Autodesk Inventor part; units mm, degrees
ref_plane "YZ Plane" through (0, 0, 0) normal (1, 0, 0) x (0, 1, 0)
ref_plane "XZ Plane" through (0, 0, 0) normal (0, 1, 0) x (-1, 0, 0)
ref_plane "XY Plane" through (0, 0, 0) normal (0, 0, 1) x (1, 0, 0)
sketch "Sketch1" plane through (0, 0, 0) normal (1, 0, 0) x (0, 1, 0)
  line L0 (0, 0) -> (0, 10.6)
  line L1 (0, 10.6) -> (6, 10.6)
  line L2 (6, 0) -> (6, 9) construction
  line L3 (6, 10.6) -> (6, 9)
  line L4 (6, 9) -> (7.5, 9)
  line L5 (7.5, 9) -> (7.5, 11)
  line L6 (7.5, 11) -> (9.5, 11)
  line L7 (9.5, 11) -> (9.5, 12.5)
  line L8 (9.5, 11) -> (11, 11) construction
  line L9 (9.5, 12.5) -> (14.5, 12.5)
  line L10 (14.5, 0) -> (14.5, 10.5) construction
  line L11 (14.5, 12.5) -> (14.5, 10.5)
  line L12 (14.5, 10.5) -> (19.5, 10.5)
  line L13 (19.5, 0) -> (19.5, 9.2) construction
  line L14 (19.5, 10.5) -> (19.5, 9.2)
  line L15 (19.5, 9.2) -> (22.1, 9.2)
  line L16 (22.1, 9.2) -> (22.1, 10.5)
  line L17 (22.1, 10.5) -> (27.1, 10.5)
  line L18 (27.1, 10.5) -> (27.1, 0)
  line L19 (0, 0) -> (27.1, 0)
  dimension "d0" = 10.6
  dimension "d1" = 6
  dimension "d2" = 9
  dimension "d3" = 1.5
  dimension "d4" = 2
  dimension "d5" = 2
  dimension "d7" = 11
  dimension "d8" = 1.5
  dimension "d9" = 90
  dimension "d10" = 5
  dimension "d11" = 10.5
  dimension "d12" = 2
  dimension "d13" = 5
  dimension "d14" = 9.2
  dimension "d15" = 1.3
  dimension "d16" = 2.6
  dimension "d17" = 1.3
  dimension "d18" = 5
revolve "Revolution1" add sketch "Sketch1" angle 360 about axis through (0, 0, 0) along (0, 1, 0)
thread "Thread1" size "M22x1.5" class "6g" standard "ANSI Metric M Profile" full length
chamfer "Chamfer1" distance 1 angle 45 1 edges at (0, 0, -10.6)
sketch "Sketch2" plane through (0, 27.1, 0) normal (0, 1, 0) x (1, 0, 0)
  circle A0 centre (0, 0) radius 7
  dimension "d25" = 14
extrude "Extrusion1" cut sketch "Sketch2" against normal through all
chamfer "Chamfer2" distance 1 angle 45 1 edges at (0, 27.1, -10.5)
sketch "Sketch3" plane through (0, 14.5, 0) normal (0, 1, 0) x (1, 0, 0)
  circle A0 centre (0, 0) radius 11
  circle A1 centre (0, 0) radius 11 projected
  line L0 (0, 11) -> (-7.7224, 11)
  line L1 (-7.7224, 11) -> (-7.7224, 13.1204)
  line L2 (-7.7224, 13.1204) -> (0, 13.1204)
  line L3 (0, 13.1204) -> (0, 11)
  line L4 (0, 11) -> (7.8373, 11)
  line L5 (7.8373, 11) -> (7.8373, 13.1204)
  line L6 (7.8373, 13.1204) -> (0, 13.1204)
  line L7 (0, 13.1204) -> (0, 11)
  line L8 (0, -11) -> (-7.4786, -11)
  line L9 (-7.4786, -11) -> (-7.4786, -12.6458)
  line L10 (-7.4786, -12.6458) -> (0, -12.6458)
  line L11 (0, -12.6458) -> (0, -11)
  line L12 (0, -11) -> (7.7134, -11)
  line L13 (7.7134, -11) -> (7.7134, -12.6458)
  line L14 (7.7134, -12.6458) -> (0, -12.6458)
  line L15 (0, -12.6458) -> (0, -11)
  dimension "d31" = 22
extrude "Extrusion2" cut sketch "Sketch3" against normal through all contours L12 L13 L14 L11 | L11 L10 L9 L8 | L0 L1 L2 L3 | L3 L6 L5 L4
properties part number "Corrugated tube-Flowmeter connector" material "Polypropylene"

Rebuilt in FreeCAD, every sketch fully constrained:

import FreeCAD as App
import Part
import Sketcher

V = App.Vector
Q = App.Units.Quantity


def edges_at(feature, points):
    """Names of the edges that pass closest to the given points."""
    edges = feature.Shape.Edges
    near = lambda p: min(range(len(edges)), key=lambda i: edges[i].distToShape(Part.Vertex(*p))[0])
    return sorted({f"Edge{near(p) + 1}" for p in points})


def add_polygon(sketch, points):
    """Adds a closed chain of lines whose ends are joined by coincident constraints."""
    first, n = sketch.GeometryCount, len(points)
    for a, b in zip(points, points[1:] + points[:1]):
        sketch.addGeometry(Part.LineSegment(App.Vector(*a, 0), App.Vector(*b, 0)), False)
    for i in range(n):
        sketch.addConstraint(Sketcher.Constraint("Coincident", first + i, 2, first + (i + 1) % n, 1))

doc = App.newDocument("Part")
body = doc.addObject("PartDesign::Body", "Body")

sketch1 = body.newObject("Sketcher::SketchObject", "Sketch")
sketch1.AttachmentSupport = (doc.getObject("YZ_Plane"), [""])
sketch1.MapMode = "FlatFace"
add_polygon(sketch1, [(0, 10.6), (0, 0), (27.1, 0), (27.1, 10.5), (22.1, 10.5), (22.1, 9.2), (19.5, 9.2), (19.5, 10.5), (14.5, 10.5), (14.5, 12.5), (9.5, 12.5), (9.5, 11), (7.5, 11), (7.5, 9), (6, 9), (6, 10.6)])
sketch1.addConstraint([
    Sketcher.Constraint("Vertical", 0),
    Sketcher.Constraint("Horizontal", 1),
    Sketcher.Constraint("Vertical", 2),
    Sketcher.Constraint("Horizontal", 3),
    Sketcher.Constraint("Vertical", 4),
    Sketcher.Constraint("Horizontal", 5),
    Sketcher.Constraint("Vertical", 6),
    Sketcher.Constraint("Horizontal", 7),
    Sketcher.Constraint("Vertical", 8),
    Sketcher.Constraint("Horizontal", 9),
    Sketcher.Constraint("Vertical", 10),
    Sketcher.Constraint("Horizontal", 11),
    Sketcher.Constraint("Vertical", 12),
    Sketcher.Constraint("Horizontal", 13),
    Sketcher.Constraint("Vertical", 14),
    Sketcher.Constraint("Horizontal", 15),
    Sketcher.Constraint("Coincident", 0, 2, -1, 1),
    Sketcher.Constraint("Horizontal", 3, 2, 6, 2),
    Sketcher.Constraint("Equal", 3, 7),
    Sketcher.Constraint("Equal", 7, 9),
    Sketcher.Constraint("Equal", 11, 8),
    Sketcher.Constraint("Equal", 13, 10),
    Sketcher.Constraint("Equal", 8, 12),
    Sketcher.Constraint("DistanceX", 3, 2, 3, 1, Q("5 mm")),
    Sketcher.Constraint("DistanceX", 11, 2, 11, 1, Q("2 mm")),
    Sketcher.Constraint("DistanceX", 15, 2, 15, 1, Q("6 mm")),
    Sketcher.Constraint("DistanceX", 5, 2, 5, 1, Q("2.6 mm")),
    Sketcher.Constraint("DistanceX", 13, 2, 13, 1, Q("1.5 mm")),
    Sketcher.Constraint("DistanceY", 0, 2, 0, 1, Q("10.6 mm")),
    Sketcher.Constraint("DistanceY", 2, 1, 2, 2, Q("10.5 mm")),
    Sketcher.Constraint("DistanceY", 4, 2, 4, 1, Q("1.3 mm")),
])
revolution = body.newObject("PartDesign::Revolution", "Revolution")
revolution.Profile = sketch1
revolution.ReferenceAxis = (sketch1, ["H_Axis"])
revolution.Angle = 360
doc.recompute()

chamfer = body.newObject("PartDesign::Chamfer", "Chamfer")
chamfer.Base = (revolution, edges_at(revolution, [(0, 0, -10.6)]))
chamfer.Size = 1

sketch2 = body.newObject("Sketcher::SketchObject", "Sketch001")
sketch2.AttachmentSupport = (doc.getObject("XZ_Plane"), [""])
sketch2.MapMode = "FlatFace"
sketch2.AttachmentOffset = App.Placement(V(0, 0, -27.1), App.Rotation())
sketch2.addGeometry(Part.Circle(V(0, 0, 0), V(0, 0, 1), 7), False)
sketch2.addConstraint([
    Sketcher.Constraint("Coincident", 0, 3, -1, 1),
    Sketcher.Constraint("Diameter", 0, Q("14 mm")),
])
pocket1 = body.newObject("PartDesign::Pocket", "Pocket")
pocket1.Profile = sketch2
pocket1.Type = "ThroughAll"
pocket1.Reversed = True
doc.recompute()

chamfer2 = body.newObject("PartDesign::Chamfer", "Chamfer001")
chamfer2.Base = (pocket1, edges_at(pocket1, [(0, 27.1, -10.5)]))
chamfer2.Size = 1

sketch3 = body.newObject("Sketcher::SketchObject", "Sketch002")
sketch3.AttachmentSupport = (doc.getObject("XZ_Plane"), [""])
sketch3.MapMode = "FlatFace"
sketch3.AttachmentOffset = App.Placement(V(0, 0, -14.5), App.Rotation())
add_polygon(sketch3, [(7.7, 11), (-7.5, 11), (-7.5, 12.6), (7.7, 12.6)])
add_polygon(sketch3, [(-7.7, -11), (7.8, -11), (7.8, -13.1), (-7.7, -13.1)])
sketch3.addConstraint([
    Sketcher.Constraint("Horizontal", 0),
    Sketcher.Constraint("Vertical", 1),
    Sketcher.Constraint("Horizontal", 2),
    Sketcher.Constraint("Vertical", 3),
    Sketcher.Constraint("Horizontal", 4),
    Sketcher.Constraint("Vertical", 5),
    Sketcher.Constraint("Horizontal", 6),
    Sketcher.Constraint("Vertical", 7),
    Sketcher.Constraint("DistanceY", 4, 2, 3, 2, Q("22 mm")),
    Sketcher.Constraint("DistanceY", -1, 1, 0, 2, Q("11 mm")),
    Sketcher.Constraint("DistanceX", 0, 2, 0, 1, Q("15.192 mm")),
    Sketcher.Constraint("DistanceX", 4, 1, 4, 2, Q("15.5597 mm")),
    Sketcher.Constraint("DistanceY", 1, 1, 1, 2, Q("1.6458 mm")),
    Sketcher.Constraint("DistanceY", 5, 2, 5, 1, Q("2.1204 mm")),
    Sketcher.Constraint("DistanceX", 3, 2, 4, 2, Q("0.124 mm")),
    Sketcher.Constraint("DistanceX", 0, 2, -1, 1, Q("7.4786 mm")),
])
pocket2 = body.newObject("PartDesign::Pocket", "Pocket001")
pocket2.Profile = sketch3
pocket2.Type = "ThroughAll"
pocket2.Reversed = True

doc.recompute()
